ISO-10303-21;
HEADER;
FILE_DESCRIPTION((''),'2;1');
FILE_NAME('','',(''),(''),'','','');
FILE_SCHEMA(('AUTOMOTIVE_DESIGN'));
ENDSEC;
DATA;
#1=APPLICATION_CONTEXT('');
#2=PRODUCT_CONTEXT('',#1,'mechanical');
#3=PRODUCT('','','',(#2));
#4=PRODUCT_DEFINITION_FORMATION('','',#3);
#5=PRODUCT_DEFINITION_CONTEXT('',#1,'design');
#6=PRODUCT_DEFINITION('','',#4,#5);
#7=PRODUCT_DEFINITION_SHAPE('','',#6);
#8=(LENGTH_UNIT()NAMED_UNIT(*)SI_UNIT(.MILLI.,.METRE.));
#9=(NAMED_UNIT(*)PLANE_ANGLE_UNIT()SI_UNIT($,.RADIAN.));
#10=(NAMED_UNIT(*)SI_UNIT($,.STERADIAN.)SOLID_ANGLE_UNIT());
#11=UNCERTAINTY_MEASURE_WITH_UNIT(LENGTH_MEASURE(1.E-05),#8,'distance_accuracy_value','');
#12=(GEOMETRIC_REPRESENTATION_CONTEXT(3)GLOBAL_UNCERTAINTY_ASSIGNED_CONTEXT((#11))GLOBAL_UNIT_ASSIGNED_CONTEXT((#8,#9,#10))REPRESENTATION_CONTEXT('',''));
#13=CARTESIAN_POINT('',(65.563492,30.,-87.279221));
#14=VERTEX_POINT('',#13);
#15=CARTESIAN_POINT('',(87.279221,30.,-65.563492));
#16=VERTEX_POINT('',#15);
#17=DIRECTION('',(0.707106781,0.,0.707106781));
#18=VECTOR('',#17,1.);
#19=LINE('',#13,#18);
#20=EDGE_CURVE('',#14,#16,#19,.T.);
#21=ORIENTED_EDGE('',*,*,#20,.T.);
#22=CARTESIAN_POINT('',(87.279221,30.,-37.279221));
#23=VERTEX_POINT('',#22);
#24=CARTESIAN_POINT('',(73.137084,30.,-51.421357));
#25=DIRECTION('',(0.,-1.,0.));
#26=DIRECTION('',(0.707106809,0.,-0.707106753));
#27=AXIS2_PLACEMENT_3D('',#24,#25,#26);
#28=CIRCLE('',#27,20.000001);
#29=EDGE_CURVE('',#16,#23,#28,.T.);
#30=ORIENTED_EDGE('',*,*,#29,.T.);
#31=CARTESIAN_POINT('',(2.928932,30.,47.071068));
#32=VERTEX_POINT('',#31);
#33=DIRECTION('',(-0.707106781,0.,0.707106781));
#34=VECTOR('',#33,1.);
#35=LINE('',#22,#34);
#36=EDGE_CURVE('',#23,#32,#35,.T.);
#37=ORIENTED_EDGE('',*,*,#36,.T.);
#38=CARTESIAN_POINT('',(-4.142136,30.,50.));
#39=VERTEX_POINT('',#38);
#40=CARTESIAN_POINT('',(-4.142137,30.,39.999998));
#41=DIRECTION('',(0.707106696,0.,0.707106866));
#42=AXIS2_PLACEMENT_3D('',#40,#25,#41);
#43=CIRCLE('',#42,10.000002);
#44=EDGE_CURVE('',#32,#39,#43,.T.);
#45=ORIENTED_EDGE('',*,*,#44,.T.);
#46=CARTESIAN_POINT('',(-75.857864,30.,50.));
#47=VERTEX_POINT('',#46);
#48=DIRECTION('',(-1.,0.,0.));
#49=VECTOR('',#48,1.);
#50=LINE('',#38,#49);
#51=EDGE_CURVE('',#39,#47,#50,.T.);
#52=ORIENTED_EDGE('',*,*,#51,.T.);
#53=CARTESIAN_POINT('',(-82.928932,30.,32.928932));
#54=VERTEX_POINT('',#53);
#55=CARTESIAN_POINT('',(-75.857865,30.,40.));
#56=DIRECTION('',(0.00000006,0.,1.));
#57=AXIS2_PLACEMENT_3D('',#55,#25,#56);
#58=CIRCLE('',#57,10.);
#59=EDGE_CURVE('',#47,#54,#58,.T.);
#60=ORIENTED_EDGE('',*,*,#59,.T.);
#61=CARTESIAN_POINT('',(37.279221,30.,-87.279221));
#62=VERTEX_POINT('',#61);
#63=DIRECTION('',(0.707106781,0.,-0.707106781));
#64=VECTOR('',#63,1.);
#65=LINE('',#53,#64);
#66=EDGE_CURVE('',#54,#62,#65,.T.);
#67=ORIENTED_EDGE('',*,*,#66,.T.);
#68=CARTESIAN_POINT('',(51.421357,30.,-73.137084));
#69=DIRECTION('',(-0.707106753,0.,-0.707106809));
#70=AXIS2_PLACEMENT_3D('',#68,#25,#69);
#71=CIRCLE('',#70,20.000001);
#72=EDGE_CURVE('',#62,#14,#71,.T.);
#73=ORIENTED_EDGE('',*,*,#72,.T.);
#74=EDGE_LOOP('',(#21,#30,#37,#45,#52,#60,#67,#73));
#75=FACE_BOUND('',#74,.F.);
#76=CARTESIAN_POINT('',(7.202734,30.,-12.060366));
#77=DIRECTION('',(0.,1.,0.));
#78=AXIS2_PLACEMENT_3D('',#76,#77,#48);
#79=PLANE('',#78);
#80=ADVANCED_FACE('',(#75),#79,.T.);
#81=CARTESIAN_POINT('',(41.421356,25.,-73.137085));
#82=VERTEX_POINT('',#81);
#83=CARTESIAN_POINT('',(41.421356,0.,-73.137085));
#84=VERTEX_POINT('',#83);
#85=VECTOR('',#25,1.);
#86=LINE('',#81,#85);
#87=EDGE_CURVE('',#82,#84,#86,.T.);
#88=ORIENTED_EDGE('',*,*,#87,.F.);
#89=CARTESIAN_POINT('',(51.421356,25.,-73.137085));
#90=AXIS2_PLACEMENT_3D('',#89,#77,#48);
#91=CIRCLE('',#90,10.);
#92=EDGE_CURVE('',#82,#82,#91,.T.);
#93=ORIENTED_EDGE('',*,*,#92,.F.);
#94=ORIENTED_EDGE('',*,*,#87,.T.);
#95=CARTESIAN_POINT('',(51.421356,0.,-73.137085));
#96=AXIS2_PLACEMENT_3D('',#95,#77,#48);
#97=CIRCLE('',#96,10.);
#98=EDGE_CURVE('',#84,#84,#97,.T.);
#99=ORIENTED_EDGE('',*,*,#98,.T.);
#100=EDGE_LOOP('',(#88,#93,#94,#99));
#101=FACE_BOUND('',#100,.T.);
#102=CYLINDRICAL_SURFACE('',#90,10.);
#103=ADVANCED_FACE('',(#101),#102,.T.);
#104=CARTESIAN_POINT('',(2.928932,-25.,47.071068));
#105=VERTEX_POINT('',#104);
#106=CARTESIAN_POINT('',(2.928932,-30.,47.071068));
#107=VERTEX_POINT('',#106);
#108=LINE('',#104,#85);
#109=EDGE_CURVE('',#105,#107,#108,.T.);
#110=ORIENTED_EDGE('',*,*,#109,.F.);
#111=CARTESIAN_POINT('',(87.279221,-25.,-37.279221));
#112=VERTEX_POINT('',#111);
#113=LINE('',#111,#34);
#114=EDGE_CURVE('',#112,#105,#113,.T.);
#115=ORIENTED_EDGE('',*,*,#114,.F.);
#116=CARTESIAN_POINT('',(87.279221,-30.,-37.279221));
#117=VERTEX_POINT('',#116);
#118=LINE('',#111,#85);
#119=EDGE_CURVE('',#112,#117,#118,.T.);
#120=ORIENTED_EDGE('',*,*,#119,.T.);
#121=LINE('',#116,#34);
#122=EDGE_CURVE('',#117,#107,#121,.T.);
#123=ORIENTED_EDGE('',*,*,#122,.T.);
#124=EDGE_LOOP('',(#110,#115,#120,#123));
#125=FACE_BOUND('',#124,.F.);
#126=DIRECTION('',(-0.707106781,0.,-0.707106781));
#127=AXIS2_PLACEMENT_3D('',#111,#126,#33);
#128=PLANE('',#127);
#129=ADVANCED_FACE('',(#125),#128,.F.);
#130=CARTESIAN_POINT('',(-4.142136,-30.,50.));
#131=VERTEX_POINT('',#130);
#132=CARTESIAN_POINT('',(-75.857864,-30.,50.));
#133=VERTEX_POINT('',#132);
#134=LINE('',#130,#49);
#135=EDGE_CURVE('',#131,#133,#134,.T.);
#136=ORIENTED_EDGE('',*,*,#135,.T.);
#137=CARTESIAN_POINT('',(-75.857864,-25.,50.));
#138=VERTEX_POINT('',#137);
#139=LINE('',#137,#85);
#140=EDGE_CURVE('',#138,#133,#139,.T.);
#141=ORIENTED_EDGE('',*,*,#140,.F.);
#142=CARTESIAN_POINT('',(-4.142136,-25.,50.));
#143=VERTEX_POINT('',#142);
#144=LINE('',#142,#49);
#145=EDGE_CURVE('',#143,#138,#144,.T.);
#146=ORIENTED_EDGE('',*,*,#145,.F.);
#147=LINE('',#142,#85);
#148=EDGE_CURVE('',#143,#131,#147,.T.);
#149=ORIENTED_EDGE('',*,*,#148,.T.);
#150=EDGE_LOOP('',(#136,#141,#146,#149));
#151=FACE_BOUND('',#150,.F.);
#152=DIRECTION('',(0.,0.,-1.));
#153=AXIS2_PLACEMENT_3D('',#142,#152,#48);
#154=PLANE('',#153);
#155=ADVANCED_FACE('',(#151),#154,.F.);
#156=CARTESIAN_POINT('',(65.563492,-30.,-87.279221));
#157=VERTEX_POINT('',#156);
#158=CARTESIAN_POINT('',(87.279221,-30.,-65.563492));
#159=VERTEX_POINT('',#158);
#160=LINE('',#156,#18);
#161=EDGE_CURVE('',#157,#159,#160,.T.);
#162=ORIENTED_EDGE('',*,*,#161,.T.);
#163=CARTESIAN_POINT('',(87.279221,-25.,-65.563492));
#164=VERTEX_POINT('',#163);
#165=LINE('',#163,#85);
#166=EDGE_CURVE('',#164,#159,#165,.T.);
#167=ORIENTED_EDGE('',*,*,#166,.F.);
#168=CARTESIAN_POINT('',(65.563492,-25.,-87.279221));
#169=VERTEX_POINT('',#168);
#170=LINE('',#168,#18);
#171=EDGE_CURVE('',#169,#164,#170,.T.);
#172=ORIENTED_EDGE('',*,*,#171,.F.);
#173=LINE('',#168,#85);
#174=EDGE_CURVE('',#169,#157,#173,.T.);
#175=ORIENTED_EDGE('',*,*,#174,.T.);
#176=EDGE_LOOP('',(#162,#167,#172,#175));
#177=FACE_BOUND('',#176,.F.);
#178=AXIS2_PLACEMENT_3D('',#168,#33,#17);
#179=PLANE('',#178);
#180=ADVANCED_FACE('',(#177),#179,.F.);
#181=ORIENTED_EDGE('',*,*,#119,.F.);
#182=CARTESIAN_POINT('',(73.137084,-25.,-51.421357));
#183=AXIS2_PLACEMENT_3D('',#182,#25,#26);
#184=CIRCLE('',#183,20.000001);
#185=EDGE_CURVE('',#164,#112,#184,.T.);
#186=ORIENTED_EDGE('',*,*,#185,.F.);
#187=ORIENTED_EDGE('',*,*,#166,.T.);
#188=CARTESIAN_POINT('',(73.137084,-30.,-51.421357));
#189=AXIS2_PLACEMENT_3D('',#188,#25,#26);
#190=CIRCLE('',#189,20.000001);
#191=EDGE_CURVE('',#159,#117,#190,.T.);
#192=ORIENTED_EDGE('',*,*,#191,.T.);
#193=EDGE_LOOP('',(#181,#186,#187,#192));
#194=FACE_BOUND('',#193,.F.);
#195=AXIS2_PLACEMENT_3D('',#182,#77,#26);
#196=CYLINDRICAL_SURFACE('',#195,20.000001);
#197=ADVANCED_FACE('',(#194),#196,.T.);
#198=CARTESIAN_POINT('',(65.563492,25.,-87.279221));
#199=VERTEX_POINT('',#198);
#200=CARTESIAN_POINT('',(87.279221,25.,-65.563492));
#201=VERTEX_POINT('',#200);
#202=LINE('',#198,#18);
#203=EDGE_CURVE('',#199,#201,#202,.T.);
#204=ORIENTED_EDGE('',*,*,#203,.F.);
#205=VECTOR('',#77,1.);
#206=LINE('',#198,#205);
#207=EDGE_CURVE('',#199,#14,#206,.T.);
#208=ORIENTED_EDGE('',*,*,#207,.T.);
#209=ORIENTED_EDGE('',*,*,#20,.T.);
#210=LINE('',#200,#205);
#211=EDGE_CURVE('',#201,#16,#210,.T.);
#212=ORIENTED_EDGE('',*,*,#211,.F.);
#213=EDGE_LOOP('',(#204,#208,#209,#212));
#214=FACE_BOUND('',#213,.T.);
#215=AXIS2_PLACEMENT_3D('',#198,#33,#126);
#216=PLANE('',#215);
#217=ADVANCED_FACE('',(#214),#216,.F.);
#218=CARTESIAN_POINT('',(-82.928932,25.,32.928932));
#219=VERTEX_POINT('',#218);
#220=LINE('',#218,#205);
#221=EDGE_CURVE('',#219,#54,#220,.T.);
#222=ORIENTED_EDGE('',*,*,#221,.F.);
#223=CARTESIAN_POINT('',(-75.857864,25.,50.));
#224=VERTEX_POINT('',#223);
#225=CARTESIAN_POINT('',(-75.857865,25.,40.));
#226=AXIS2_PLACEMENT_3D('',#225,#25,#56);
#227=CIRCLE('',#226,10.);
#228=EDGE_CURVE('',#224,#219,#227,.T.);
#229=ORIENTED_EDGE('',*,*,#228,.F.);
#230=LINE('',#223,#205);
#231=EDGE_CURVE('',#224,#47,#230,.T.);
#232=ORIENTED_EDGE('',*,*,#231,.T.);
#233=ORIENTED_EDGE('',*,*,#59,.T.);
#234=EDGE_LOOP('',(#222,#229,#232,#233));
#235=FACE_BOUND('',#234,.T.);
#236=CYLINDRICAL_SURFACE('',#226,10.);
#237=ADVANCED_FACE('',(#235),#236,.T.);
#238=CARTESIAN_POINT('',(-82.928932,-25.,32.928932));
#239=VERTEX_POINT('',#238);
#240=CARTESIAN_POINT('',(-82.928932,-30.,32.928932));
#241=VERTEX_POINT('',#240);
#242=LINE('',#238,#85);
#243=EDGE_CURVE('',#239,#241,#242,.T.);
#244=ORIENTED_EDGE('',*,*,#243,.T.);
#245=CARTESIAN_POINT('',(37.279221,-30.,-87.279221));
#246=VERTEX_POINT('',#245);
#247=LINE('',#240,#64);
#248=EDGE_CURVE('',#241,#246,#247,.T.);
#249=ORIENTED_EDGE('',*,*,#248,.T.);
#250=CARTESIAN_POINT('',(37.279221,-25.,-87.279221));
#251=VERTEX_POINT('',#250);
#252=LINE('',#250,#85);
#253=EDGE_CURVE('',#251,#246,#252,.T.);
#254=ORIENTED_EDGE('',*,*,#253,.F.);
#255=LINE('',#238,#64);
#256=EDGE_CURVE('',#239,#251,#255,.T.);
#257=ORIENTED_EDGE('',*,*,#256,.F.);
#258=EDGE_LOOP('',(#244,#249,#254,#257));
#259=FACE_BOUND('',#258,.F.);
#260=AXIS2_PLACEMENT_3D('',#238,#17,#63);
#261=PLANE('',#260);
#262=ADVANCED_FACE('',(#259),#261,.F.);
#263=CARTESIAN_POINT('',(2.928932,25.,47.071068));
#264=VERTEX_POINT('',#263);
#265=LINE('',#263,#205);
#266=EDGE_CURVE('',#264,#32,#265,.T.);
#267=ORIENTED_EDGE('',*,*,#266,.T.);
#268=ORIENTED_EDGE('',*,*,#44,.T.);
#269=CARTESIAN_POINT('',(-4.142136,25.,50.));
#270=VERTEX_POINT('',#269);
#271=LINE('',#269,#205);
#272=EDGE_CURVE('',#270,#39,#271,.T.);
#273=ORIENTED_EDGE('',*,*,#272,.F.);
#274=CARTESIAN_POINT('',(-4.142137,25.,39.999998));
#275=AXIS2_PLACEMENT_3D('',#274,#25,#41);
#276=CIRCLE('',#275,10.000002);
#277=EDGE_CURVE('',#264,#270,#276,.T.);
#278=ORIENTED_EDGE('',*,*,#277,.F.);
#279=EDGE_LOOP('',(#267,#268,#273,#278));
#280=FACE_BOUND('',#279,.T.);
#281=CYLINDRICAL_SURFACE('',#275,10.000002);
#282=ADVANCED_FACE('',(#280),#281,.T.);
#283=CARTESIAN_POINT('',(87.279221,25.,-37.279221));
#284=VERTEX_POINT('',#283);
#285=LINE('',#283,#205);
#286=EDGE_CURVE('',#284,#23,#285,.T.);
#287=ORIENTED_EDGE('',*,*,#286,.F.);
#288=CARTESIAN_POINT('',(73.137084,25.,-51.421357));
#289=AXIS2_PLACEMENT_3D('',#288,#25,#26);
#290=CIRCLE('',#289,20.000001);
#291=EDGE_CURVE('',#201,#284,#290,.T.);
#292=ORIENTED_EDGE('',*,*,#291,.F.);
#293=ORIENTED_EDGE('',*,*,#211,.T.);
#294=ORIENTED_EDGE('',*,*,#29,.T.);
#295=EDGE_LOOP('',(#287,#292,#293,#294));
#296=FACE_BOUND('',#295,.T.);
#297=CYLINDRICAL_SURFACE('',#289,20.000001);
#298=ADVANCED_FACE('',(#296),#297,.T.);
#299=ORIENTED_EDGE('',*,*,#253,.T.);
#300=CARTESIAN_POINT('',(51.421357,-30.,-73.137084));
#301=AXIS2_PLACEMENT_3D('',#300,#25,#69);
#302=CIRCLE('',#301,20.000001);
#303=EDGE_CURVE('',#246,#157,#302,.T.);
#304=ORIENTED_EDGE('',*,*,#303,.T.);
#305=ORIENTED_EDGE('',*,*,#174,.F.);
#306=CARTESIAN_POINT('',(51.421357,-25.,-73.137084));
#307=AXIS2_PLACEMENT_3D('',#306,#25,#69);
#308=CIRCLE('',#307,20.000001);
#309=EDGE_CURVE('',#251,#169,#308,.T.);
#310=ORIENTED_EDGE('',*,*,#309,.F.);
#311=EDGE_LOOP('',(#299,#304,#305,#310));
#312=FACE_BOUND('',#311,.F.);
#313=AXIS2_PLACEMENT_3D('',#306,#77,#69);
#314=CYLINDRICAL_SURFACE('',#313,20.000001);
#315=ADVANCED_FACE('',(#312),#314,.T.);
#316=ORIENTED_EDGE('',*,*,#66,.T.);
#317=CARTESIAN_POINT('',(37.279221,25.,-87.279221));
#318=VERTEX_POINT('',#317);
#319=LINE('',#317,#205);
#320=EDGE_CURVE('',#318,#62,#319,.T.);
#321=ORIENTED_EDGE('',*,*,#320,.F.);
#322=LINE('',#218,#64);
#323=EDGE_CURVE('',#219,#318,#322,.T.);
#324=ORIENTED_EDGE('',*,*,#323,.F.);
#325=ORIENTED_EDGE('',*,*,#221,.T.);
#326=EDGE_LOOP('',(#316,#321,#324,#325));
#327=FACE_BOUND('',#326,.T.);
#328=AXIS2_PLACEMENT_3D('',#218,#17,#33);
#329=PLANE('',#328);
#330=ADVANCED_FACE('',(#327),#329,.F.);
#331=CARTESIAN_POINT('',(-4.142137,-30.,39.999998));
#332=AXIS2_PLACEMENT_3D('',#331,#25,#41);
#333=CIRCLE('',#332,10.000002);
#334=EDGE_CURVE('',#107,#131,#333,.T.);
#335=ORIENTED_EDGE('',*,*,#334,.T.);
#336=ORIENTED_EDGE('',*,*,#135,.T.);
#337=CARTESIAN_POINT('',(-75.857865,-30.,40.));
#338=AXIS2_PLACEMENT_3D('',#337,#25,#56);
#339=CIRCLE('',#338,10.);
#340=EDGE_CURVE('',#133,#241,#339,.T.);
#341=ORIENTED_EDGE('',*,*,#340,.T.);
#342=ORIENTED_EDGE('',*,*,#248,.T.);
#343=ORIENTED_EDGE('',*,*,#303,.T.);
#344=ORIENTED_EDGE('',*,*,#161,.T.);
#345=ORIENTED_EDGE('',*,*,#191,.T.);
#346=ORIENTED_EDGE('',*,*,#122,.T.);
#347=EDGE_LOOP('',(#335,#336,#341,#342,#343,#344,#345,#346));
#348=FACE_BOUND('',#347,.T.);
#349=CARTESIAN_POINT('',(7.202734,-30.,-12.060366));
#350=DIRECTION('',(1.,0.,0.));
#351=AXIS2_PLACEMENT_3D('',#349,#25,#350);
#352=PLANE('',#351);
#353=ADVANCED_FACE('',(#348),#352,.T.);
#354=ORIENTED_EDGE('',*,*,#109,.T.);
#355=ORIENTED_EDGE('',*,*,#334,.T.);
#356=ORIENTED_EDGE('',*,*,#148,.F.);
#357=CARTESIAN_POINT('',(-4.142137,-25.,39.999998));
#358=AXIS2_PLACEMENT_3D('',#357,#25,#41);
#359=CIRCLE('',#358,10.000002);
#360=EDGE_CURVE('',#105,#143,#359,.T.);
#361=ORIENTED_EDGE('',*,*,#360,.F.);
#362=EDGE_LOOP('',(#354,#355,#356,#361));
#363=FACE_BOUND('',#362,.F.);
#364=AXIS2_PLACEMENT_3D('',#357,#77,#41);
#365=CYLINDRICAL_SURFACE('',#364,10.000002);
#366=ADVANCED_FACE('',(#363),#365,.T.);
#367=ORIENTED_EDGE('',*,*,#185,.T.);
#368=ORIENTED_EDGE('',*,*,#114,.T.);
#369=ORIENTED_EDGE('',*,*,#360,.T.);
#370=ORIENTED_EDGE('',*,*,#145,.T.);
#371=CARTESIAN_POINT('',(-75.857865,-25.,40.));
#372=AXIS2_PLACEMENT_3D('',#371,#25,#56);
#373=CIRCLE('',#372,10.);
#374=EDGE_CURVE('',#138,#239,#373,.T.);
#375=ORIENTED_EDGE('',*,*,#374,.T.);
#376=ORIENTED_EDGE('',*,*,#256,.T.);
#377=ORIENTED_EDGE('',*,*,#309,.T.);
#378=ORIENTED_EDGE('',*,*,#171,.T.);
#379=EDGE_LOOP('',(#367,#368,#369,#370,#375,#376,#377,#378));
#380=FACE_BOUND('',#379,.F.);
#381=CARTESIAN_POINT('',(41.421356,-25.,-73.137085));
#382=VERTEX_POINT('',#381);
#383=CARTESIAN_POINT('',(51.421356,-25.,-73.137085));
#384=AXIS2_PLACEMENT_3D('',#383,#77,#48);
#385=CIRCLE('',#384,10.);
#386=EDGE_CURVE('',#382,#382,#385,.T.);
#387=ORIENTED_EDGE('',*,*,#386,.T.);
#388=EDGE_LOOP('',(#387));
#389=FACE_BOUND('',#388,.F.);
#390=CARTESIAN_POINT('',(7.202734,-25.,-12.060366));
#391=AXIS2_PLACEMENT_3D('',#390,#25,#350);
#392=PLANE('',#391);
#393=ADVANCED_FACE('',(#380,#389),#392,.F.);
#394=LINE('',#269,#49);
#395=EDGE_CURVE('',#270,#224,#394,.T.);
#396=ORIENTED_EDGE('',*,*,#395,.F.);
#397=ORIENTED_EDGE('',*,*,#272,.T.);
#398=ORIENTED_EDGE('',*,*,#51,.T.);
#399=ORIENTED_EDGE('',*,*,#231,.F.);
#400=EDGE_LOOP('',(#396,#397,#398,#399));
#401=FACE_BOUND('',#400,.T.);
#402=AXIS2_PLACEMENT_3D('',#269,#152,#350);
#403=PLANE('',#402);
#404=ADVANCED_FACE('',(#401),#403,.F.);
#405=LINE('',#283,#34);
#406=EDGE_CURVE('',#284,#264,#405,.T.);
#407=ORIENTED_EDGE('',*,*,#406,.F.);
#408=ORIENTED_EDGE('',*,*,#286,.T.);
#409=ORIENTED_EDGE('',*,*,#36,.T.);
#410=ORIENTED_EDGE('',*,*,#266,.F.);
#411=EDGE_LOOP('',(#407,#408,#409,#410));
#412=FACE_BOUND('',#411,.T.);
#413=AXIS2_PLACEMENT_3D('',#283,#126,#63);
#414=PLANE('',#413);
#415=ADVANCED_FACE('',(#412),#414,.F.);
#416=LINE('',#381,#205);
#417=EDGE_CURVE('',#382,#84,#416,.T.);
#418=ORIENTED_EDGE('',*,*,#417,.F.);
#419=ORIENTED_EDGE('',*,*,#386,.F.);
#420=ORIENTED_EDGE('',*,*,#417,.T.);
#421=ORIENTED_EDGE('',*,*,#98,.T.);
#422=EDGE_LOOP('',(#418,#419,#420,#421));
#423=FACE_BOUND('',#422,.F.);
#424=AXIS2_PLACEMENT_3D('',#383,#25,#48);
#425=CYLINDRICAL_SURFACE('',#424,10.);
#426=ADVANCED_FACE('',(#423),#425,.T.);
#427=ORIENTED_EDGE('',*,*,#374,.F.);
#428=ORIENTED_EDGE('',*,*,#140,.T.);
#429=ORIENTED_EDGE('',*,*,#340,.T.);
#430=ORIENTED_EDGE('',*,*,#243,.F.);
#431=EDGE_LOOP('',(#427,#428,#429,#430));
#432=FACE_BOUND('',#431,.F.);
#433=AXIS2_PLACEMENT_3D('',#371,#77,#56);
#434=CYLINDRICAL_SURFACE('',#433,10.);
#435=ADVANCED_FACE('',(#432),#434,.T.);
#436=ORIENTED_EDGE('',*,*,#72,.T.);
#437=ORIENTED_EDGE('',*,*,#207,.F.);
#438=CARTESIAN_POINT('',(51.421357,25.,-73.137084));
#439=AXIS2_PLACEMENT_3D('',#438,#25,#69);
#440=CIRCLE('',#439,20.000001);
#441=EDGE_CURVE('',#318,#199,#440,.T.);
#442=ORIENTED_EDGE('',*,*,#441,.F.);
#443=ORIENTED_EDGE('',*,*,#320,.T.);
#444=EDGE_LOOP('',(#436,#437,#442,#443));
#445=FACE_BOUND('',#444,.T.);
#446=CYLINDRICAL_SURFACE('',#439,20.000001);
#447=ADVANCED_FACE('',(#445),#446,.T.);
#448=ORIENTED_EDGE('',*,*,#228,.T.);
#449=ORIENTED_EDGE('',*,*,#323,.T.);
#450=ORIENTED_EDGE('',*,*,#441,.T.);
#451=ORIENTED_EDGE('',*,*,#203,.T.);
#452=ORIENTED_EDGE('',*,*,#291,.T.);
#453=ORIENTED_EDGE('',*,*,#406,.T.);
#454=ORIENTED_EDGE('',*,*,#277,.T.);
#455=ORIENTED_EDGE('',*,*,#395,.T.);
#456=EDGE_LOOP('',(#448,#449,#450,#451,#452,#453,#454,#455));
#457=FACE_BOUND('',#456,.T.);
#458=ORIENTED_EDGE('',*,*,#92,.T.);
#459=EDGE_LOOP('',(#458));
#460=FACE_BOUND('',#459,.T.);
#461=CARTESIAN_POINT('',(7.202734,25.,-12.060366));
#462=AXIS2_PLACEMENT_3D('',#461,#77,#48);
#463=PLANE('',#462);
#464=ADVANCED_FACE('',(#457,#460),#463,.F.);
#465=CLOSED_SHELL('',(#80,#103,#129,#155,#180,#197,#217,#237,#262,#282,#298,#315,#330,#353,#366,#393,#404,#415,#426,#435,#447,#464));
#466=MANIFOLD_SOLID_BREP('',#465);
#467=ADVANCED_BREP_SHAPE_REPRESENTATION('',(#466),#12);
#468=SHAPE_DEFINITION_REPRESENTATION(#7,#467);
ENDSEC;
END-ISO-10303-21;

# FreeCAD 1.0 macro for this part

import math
import FreeCAD as App
import Part
import Sketcher
from FreeCAD import Vector

doc = App.newDocument("Part")
params = doc.addObject("Spreadsheet::Sheet", "Params")
for row, (alias, value) in enumerate([
    ("sketch1_radius", "10 mm"),
    ("sketch1_radius2", "20.000001 mm"),
    ("sketch1_length", "170 mm"),
    ("pad1_length", "5 mm"),
    ("sketch2_diameter", "20 mm"),
    ("pad2_length", "25 mm"),
], start=1):
    params.set(f"A{row}", alias)
    params.set(f"B{row}", "=" + value)
    params.setAlias(f"B{row}", alias)

body = doc.addObject("PartDesign::Body", "Body")

sketch1 = doc.addObject("Sketcher::SketchObject", "Sketch")
body.addObject(sketch1)
sketch1.AttachmentSupport = (doc.XZ_Plane, [""])
sketch1.MapMode = "FlatFace"
sketch1.AttachmentOffset = App.Placement(Vector(0, 0, 25), App.Rotation())
sketch1.addGeometry(Part.LineSegment(Vector(-4, 50, 0), Vector(-76, 50, 0)), False)
sketch1.addGeometry(Part.ArcOfCircle(Part.Circle(Vector(-76, 40, 0), Vector(0, 0, 1), 10), math.radians(90), math.radians(225)), False)
sketch1.addGeometry(Part.LineSegment(Vector(-83, 33, 0), Vector(37, -87, 0)), False)
sketch1.addGeometry(Part.ArcOfCircle(Part.Circle(Vector(51, -73, 0), Vector(0, 0, 1), 20), math.radians(-135), math.radians(-45)), False)
sketch1.addGeometry(Part.LineSegment(Vector(66, -87, 0), Vector(87, -66, 0)), False)
sketch1.addGeometry(Part.ArcOfCircle(Part.Circle(Vector(73, -51, 0), Vector(0, 0, 1), 20), math.radians(-45), math.radians(45)), False)
sketch1.addGeometry(Part.LineSegment(Vector(87, -37, 0), Vector(3, 47, 0)), False)
sketch1.addGeometry(Part.ArcOfCircle(Part.Circle(Vector(-4, 40, 0), Vector(0, 0, 1), 10), math.radians(45), math.radians(90)), False)
sketch1.addConstraint(Sketcher.Constraint("Tangent", 0, 2, 1, 1))
sketch1.addConstraint(Sketcher.Constraint("Tangent", 1, 2, 2, 1))
sketch1.addConstraint(Sketcher.Constraint("Tangent", 2, 2, 3, 1))
sketch1.addConstraint(Sketcher.Constraint("Tangent", 3, 2, 4, 1))
sketch1.addConstraint(Sketcher.Constraint("Tangent", 4, 2, 5, 1))
sketch1.addConstraint(Sketcher.Constraint("Tangent", 5, 2, 6, 1))
sketch1.addConstraint(Sketcher.Constraint("Tangent", 6, 2, 7, 1))
sketch1.addConstraint(Sketcher.Constraint("Tangent", 7, 2, 0, 1))
sketch1.addConstraint(Sketcher.Constraint("Horizontal", 0))
sketch1.addConstraint(Sketcher.Constraint("Equal", 3, 5))
sketch1.addConstraint(Sketcher.Constraint("Perpendicular", 2, 4))
sketch1.addConstraint(Sketcher.Constraint("Perpendicular", 4, 6))
sketch1.addConstraint(Sketcher.Constraint("Horizontal", 2, 2, 3, 2))
sketch1.addConstraint(Sketcher.Constraint("Radius", 1, 10.0))
sketch1.addConstraint(Sketcher.Constraint("Radius", 3, 20.000001))
sketch1.addConstraint(Sketcher.Constraint("Distance", 2, 170.0))
sketch1.addConstraint(Sketcher.Constraint("DistanceY", -1, 1, 1, 3, 40.0))
sketch1.addConstraint(Sketcher.Constraint("DistanceX", 2, 2, 4, 2, 50.0))
sketch1.addConstraint(Sketcher.Constraint("Radius", 7, 10.000002))
sketch1.addConstraint(Sketcher.Constraint("DistanceX", -1, 1, 2, 2, 37.279221))
sketch1.setExpression("Constraints[13]", "Params.sketch1_radius")
sketch1.setExpression("Constraints[14]", "Params.sketch1_radius2")
sketch1.setExpression("Constraints[15]", "Params.sketch1_length")
pad1 = doc.addObject("PartDesign::Pad", "Pad")
body.addObject(pad1)
pad1.Profile = sketch1
pad1.setExpression("Length", "Params.pad1_length")

sketch2 = doc.addObject("Sketcher::SketchObject", "Sketch001")
body.addObject(sketch2)
sketch2.AttachmentSupport = (doc.XZ_Plane, [""])
sketch2.MapMode = "FlatFace"
sketch2.AttachmentOffset = App.Placement(Vector(0, 0, 25), App.Rotation())
sketch2.addGeometry(Part.Circle(Vector(51, -73, 0), Vector(0, 0, 1), 10), False)
sketch2.addConstraint(Sketcher.Constraint("Diameter", 0, 20.0))
sketch2.addConstraint(Sketcher.Constraint("DistanceX", -1, 1, 0, 3, 51.421356))
sketch2.addConstraint(Sketcher.Constraint("DistanceY", 0, 3, -1, 1, 73.137085))
sketch2.setExpression("Constraints[0]", "Params.sketch2_diameter")
pad2 = doc.addObject("PartDesign::Pad", "Pad001")
body.addObject(pad2)
pad2.Profile = sketch2
pad2.setExpression("Length", "Params.pad2_length")
pad2.Reversed = True
body2 = doc.addObject("PartDesign::Body", "Body001")
doc.recompute()

body2.BaseFeature = body
doc.recompute()

mirroring = doc.addObject("Part::Mirroring", "Mirroring")
mirroring.Source = body
mirroring.Base = Vector(0, 0, 0)
mirroring.Normal = Vector(0, -1, 0)
body3 = doc.addObject("PartDesign::Body", "Body002")
body3.BaseFeature = mirroring
boolean = doc.addObject("PartDesign::Boolean", "Boolean")
body2.addObject(boolean)
boolean.Type = "Fuse"
boolean.addObjects([body3])
doc.recompute()
mirroring.Visibility = False

doc.recompute()
